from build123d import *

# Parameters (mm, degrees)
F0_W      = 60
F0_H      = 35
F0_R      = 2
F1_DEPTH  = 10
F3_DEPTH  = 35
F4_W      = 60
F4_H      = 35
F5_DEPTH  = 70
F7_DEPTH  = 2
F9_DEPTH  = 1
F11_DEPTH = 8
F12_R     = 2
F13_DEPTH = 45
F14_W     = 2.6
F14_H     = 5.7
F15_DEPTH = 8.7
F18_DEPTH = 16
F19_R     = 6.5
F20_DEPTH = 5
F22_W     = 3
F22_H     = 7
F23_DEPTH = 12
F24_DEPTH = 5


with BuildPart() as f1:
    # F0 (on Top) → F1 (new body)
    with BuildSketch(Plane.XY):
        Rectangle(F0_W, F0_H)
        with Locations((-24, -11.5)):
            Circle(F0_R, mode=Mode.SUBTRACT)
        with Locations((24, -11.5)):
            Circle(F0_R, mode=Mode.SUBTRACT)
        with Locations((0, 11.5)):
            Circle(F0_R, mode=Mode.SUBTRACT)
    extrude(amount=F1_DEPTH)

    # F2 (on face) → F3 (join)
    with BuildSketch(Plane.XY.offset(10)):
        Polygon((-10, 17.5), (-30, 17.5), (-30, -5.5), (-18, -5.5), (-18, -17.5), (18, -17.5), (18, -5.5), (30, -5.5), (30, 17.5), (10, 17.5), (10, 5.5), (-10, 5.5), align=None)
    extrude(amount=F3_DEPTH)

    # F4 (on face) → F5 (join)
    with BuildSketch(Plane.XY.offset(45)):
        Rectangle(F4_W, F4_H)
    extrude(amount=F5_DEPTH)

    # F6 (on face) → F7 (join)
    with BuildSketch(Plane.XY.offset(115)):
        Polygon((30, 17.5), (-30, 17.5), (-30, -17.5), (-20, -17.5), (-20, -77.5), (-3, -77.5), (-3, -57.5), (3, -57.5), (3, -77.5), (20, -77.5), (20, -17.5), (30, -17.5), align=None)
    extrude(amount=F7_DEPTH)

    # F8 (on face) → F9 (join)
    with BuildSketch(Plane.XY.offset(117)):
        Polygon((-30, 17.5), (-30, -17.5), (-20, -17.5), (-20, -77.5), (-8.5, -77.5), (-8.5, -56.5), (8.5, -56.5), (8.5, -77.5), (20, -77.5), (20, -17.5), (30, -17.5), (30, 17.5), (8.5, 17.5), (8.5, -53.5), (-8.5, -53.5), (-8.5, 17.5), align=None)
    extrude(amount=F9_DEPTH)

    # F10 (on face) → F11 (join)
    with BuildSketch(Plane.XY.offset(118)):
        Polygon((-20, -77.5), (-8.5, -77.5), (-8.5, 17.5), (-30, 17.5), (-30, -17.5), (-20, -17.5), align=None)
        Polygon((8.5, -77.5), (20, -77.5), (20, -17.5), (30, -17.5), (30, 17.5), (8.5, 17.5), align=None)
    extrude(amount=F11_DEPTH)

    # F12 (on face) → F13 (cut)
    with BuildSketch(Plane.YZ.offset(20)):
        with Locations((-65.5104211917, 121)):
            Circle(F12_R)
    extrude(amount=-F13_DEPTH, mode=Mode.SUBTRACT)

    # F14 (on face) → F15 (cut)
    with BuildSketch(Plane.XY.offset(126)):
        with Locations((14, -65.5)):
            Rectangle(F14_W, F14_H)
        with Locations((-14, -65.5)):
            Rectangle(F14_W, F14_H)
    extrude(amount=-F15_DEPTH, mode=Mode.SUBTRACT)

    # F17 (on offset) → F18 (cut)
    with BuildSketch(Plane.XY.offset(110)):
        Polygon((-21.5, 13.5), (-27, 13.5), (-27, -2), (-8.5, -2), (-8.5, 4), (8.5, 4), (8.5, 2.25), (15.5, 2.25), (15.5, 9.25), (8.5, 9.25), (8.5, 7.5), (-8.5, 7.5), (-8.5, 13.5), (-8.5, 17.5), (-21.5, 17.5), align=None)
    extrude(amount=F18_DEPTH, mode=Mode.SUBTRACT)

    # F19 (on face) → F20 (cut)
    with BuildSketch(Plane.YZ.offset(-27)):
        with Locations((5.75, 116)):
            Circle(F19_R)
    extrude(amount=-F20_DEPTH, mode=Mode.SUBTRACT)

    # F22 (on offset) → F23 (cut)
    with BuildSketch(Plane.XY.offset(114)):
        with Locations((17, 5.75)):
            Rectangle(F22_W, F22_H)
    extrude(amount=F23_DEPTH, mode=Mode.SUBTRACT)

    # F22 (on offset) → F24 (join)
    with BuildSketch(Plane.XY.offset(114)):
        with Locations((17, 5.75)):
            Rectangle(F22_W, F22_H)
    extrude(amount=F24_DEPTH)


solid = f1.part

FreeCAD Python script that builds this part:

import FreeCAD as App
import Part
import Sketcher

V = App.Vector
Q = App.Units.Quantity

doc = App.newDocument("Part")
params = doc.addObject("Spreadsheet::Sheet", "Params")
for row, (alias, value) in enumerate([
    ("sketch1_diameter", "4 mm"),
    ("sketch1_width", "60 mm"),
    ("sketch1_height", "35 mm"),
    ("pad1_length", "10 mm"),
    ("sketch2_width", "20 mm"),
    ("sketch2_width2", "12 mm"),
    ("sketch2_height", "23 mm"),
    ("pad2_length", "35 mm"),
    ("sketch3_width", "60 mm"),
    ("sketch3_height", "35 mm"),
    ("pad3_length", "70 mm"),
    ("sketch4_width", "60 mm"),
    ("sketch4_width2", "10 mm"),
    ("sketch4_width3", "17 mm"),
    ("sketch4_height", "35 mm"),
    ("sketch4_height2", "20 mm"),
    ("pad4_length", "2 mm"),
    ("sketch5_width", "10 mm"),
    ("sketch5_width2", "17 mm"),
    ("sketch5_height", "35 mm"),
    ("sketch5_height2", "60 mm"),
    ("sketch5_height3", "21 mm"),
    ("pad5_length", "1 mm"),
    ("sketch6_width", "10 mm"),
    ("sketch6_height", "95 mm"),
    ("sketch6_height2", "35 mm"),
    ("sketch6_width2", "11.5 mm"),
    ("pad6_length", "8 mm"),
    ("sketch7_diameter", "4 mm"),
    ("pocket1_length", "45 mm"),
    ("sketch8_width", "2.6 mm"),
    ("sketch8_height", "5.7 mm"),
    ("pocket2_length", "8.7 mm"),
    ("sketch9_width", "17 mm"),
    ("sketch9_width2", "7 mm"),
    ("sketch9_width3", "13 mm"),
    ("sketch9_height", "6 mm"),
    ("sketch9_height2", "10 mm"),
    ("pocket3_length", "16 mm"),
    ("sketch10_diameter", "13 mm"),
    ("pocket4_length", "5 mm"),
    ("sketch11_width", "3 mm"),
    ("sketch11_height", "7 mm"),
    ("pocket5_length", "12 mm"),
    ("sketch12_width", "3 mm"),
    ("sketch12_height", "7 mm"),
    ("pad7_length", "5 mm"),
], start=1):
    params.set(f"A{row}", alias)
    params.set(f"B{row}", "=" + value)
    params.setAlias(f"B{row}", alias)

body = doc.addObject("PartDesign::Body", "Body")

# Sketch on XY plane
sketch1 = body.newObject("Sketcher::SketchObject", "Sketch")
sketch1.AttachmentSupport = (doc.getObject("XY_Plane"), [""])
sketch1.MapMode = "FlatFace"
sketch1.addGeometry(Part.LineSegment(V(-30, 17.5, 0), V(-30, -17.5, 0)), False)
sketch1.addGeometry(Part.LineSegment(V(-30, -17.5, 0), V(30, -17.5, 0)), False)
sketch1.addGeometry(Part.LineSegment(V(30, -17.5, 0), V(30, 17.5, 0)), False)
sketch1.addGeometry(Part.LineSegment(V(30, 17.5, 0), V(-30, 17.5, 0)), False)
sketch1.addGeometry(Part.Circle(V(-24, -11.5, 0), V(0, 0, 1), 2), False)
sketch1.addGeometry(Part.Circle(V(24, -11.5, 0), V(0, 0, 1), 2), False)
sketch1.addGeometry(Part.Circle(V(0, 11.5, 0), V(0, 0, 1), 2), False)
sketch1.addConstraint(Sketcher.Constraint("Coincident", 0, 2, 1, 1))
sketch1.addConstraint(Sketcher.Constraint("Coincident", 1, 2, 2, 1))
sketch1.addConstraint(Sketcher.Constraint("Coincident", 2, 2, 3, 1))
sketch1.addConstraint(Sketcher.Constraint("Coincident", 3, 2, 0, 1))
sketch1.addConstraint(Sketcher.Constraint("Vertical", 0))
sketch1.addConstraint(Sketcher.Constraint("Horizontal", 1))
sketch1.addConstraint(Sketcher.Constraint("Vertical", 2))
sketch1.addConstraint(Sketcher.Constraint("Horizontal", 3))
sketch1.addConstraint(Sketcher.Constraint("Equal", 4, 5))
sketch1.addConstraint(Sketcher.Constraint("Equal", 5, 6))
sketch1.addConstraint(Sketcher.Constraint("Symmetric", 0, 2, 2, 2, -1, 1))
sketch1.addConstraint(Sketcher.Constraint("Symmetric", 4, 3, 5, 3, -2))
sketch1.addConstraint(Sketcher.Constraint("PointOnObject", 6, 3, -2))
sketch1.addConstraint(Sketcher.Constraint("Diameter", 4, Q("4 mm")))
sketch1.addConstraint(Sketcher.Constraint("DistanceX", 1, 1, 1, 2, Q("60 mm")))
sketch1.addConstraint(Sketcher.Constraint("DistanceY", 0, 2, 0, 1, Q("35 mm")))
sketch1.addConstraint(Sketcher.Constraint("DistanceX", 4, 3, -1, 1, Q("24 mm")))
sketch1.addConstraint(Sketcher.Constraint("DistanceY", 4, 3, 6, 3, Q("23 mm")))
sketch1.addConstraint(Sketcher.Constraint("DistanceY", 0, 2, 4, 3, Q("6 mm")))
sketch1.setExpression("Constraints[13]", "Params.sketch1_diameter")
sketch1.setExpression("Constraints[14]", "Params.sketch1_width")
sketch1.setExpression("Constraints[15]", "Params.sketch1_height")
pad1 = body.newObject("PartDesign::Pad", "Pad")
pad1.Profile = sketch1
pad1.setExpression("Length", "Params.pad1_length")

# Sketch on XY plane
sketch2 = body.newObject("Sketcher::SketchObject", "Sketch001")
sketch2.AttachmentSupport = (doc.getObject("XY_Plane"), [""])
sketch2.MapMode = "FlatFace"
sketch2.AttachmentOffset = App.Placement(V(0, 0, 10), App.Rotation())
sketch2.addGeometry(Part.LineSegment(V(-10, 18, 0), V(-30, 18, 0)), False)
sketch2.addGeometry(Part.LineSegment(V(-30, 18, 0), V(-30, -6, 0)), False)
sketch2.addGeometry(Part.LineSegment(V(-30, -6, 0), V(-18, -6, 0)), False)
sketch2.addGeometry(Part.LineSegment(V(-18, -6, 0), V(-18, -18, 0)), False)
sketch2.addGeometry(Part.LineSegment(V(-18, -18, 0), V(18, -18, 0)), False)
sketch2.addGeometry(Part.LineSegment(V(18, -18, 0), V(18, -6, 0)), False)
sketch2.addGeometry(Part.LineSegment(V(18, -6, 0), V(30, -6, 0)), False)
sketch2.addGeometry(Part.LineSegment(V(30, -6, 0), V(30, 18, 0)), False)
sketch2.addGeometry(Part.LineSegment(V(30, 18, 0), V(10, 18, 0)), False)
sketch2.addGeometry(Part.LineSegment(V(10, 18, 0), V(10, 6, 0)), False)
sketch2.addGeometry(Part.LineSegment(V(10, 6, 0), V(-10, 6, 0)), False)
sketch2.addGeometry(Part.LineSegment(V(-10, 6, 0), V(-10, 18, 0)), False)
sketch2.addConstraint(Sketcher.Constraint("Coincident", 0, 2, 1, 1))
sketch2.addConstraint(Sketcher.Constraint("Coincident", 1, 2, 2, 1))
sketch2.addConstraint(Sketcher.Constraint("Coincident", 2, 2, 3, 1))
sketch2.addConstraint(Sketcher.Constraint("Coincident", 3, 2, 4, 1))
sketch2.addConstraint(Sketcher.Constraint("Coincident", 4, 2, 5, 1))
sketch2.addConstraint(Sketcher.Constraint("Coincident", 5, 2, 6, 1))
sketch2.addConstraint(Sketcher.Constraint("Coincident", 6, 2, 7, 1))
sketch2.addConstraint(Sketcher.Constraint("Coincident", 7, 2, 8, 1))
sketch2.addConstraint(Sketcher.Constraint("Coincident", 8, 2, 9, 1))
sketch2.addConstraint(Sketcher.Constraint("Coincident", 9, 2, 10, 1))
sketch2.addConstraint(Sketcher.Constraint("Coincident", 10, 2, 11, 1))
sketch2.addConstraint(Sketcher.Constraint("Coincident", 11, 2, 0, 1))
sketch2.addConstraint(Sketcher.Constraint("Horizontal", 0))
sketch2.addConstraint(Sketcher.Constraint("Vertical", 1))
sketch2.addConstraint(Sketcher.Constraint("Horizontal", 2))
sketch2.addConstraint(Sketcher.Constraint("Vertical", 3))
sketch2.addConstraint(Sketcher.Constraint("Horizontal", 4))
sketch2.addConstraint(Sketcher.Constraint("Vertical", 5))
sketch2.addConstraint(Sketcher.Constraint("Horizontal", 6))
sketch2.addConstraint(Sketcher.Constraint("Vertical", 7))
sketch2.addConstraint(Sketcher.Constraint("Horizontal", 8))
sketch2.addConstraint(Sketcher.Constraint("Vertical", 9))
sketch2.addConstraint(Sketcher.Constraint("Horizontal", 10))
sketch2.addConstraint(Sketcher.Constraint("Vertical", 11))
sketch2.addConstraint(Sketcher.Constraint("Symmetric", 2, 2, 5, 2, -2))
sketch2.addConstraint(Sketcher.Constraint("Symmetric", 0, 2, 7, 2, -2))
sketch2.addConstraint(Sketcher.Constraint("Equal", 0, 8))
sketch2.addConstraint(Sketcher.Constraint("Equal", 8, 10))
sketch2.addConstraint(Sketcher.Constraint("Equal", 6, 3))
sketch2.addConstraint(Sketcher.Constraint("Equal", 5, 9))
sketch2.addConstraint(Sketcher.Constraint("DistanceX", 0, 2, 0, 1, Q("20 mm")))
sketch2.addConstraint(Sketcher.Constraint("DistanceX", 2, 1, 2, 2, Q("12 mm")))
sketch2.addConstraint(Sketcher.Constraint("DistanceY", 1, 2, 1, 1, Q("23 mm")))
sketch2.addConstraint(Sketcher.Constraint("DistanceY", -1, 1, 0, 2, Q("17.5 mm")))
sketch2.setExpression("Constraints[30]", "Params.sketch2_width")
sketch2.setExpression("Constraints[31]", "Params.sketch2_width2")
sketch2.setExpression("Constraints[32]", "Params.sketch2_height")
pad2 = body.newObject("PartDesign::Pad", "Pad001")
pad2.Profile = sketch2
pad2.setExpression("Length", "Params.pad2_length")

# Sketch on XY plane
sketch3 = body.newObject("Sketcher::SketchObject", "Sketch002")
sketch3.AttachmentSupport = (doc.getObject("XY_Plane"), [""])
sketch3.MapMode = "FlatFace"
sketch3.AttachmentOffset = App.Placement(V(0, 0, 45), App.Rotation())
sketch3.addGeometry(Part.LineSegment(V(-30, 18, 0), V(-30, -18, 0)), False)
sketch3.addGeometry(Part.LineSegment(V(-30, -18, 0), V(30, -18, 0)), False)
sketch3.addGeometry(Part.LineSegment(V(30, -18, 0), V(30, 18, 0)), False)
sketch3.addGeometry(Part.LineSegment(V(30, 18, 0), V(-30, 18, 0)), False)
sketch3.addConstraint(Sketcher.Constraint("Coincident", 0, 2, 1, 1))
sketch3.addConstraint(Sketcher.Constraint("Coincident", 1, 2, 2, 1))
sketch3.addConstraint(Sketcher.Constraint("Coincident", 2, 2, 3, 1))
sketch3.addConstraint(Sketcher.Constraint("Coincident", 3, 2, 0, 1))
sketch3.addConstraint(Sketcher.Constraint("Vertical", 0))
sketch3.addConstraint(Sketcher.Constraint("Horizontal", 1))
sketch3.addConstraint(Sketcher.Constraint("Vertical", 2))
sketch3.addConstraint(Sketcher.Constraint("Horizontal", 3))
sketch3.addConstraint(Sketcher.Constraint("Symmetric", 0, 2, 2, 2, -1, 1))
sketch3.addConstraint(Sketcher.Constraint("DistanceX", 1, 1, 1, 2, Q("60 mm")))
sketch3.addConstraint(Sketcher.Constraint("DistanceY", 0, 2, 0, 1, Q("35 mm")))
sketch3.setExpression("Constraints[9]", "Params.sketch3_width")
sketch3.setExpression("Constraints[10]", "Params.sketch3_height")
pad3 = body.newObject("PartDesign::Pad", "Pad002")
pad3.Profile = sketch3
pad3.setExpression("Length", "Params.pad3_length")

# Sketch on XY plane
sketch4 = body.newObject("Sketcher::SketchObject", "Sketch003")
sketch4.AttachmentSupport = (doc.getObject("XY_Plane"), [""])
sketch4.MapMode = "FlatFace"
sketch4.AttachmentOffset = App.Placement(V(0, 0, 115), App.Rotation())
sketch4.addGeometry(Part.LineSegment(V(30, 18, 0), V(-30, 18, 0)), False)
sketch4.addGeometry(Part.LineSegment(V(-30, 18, 0), V(-30, -18, 0)), False)
sketch4.addGeometry(Part.LineSegment(V(-30, -18, 0), V(-20, -18, 0)), False)
sketch4.addGeometry(Part.LineSegment(V(-20, -18, 0), V(-20, -78, 0)), False)
sketch4.addGeometry(Part.LineSegment(V(-20, -78, 0), V(-3, -78, 0)), False)
sketch4.addGeometry(Part.LineSegment(V(-3, -78, 0), V(-3, -58, 0)), False)
sketch4.addGeometry(Part.LineSegment(V(-3, -58, 0), V(3, -58, 0)), False)
sketch4.addGeometry(Part.LineSegment(V(3, -58, 0), V(3, -78, 0)), False)
sketch4.addGeometry(Part.LineSegment(V(3, -78, 0), V(20, -78, 0)), False)
sketch4.addGeometry(Part.LineSegment(V(20, -78, 0), V(20, -18, 0)), False)
sketch4.addGeometry(Part.LineSegment(V(20, -18, 0), V(30, -18, 0)), False)
sketch4.addGeometry(Part.LineSegment(V(30, -18, 0), V(30, 18, 0)), False)
sketch4.addConstraint(Sketcher.Constraint("Coincident", 0, 2, 1, 1))
sketch4.addConstraint(Sketcher.Constraint("Coincident", 1, 2, 2, 1))
sketch4.addConstraint(Sketcher.Constraint("Coincident", 2, 2, 3, 1))
sketch4.addConstraint(Sketcher.Constraint("Coincident", 3, 2, 4, 1))
sketch4.addConstraint(Sketcher.Constraint("Coincident", 4, 2, 5, 1))
sketch4.addConstraint(Sketcher.Constraint("Coincident", 5, 2, 6, 1))
sketch4.addConstraint(Sketcher.Constraint("Coincident", 6, 2, 7, 1))
sketch4.addConstraint(Sketcher.Constraint("Coincident", 7, 2, 8, 1))
sketch4.addConstraint(Sketcher.Constraint("Coincident", 8, 2, 9, 1))
sketch4.addConstraint(Sketcher.Constraint("Coincident", 9, 2, 10, 1))
sketch4.addConstraint(Sketcher.Constraint("Coincident", 10, 2, 11, 1))
sketch4.addConstraint(Sketcher.Constraint("Coincident", 11, 2, 0, 1))
sketch4.addConstraint(Sketcher.Constraint("Horizontal", 0))
sketch4.addConstraint(Sketcher.Constraint("Vertical", 1))
sketch4.addConstraint(Sketcher.Constraint("Horizontal", 2))
sketch4.addConstraint(Sketcher.Constraint("Vertical", 3))
sketch4.addConstraint(Sketcher.Constraint("Horizontal", 4))
sketch4.addConstraint(Sketcher.Constraint("Vertical", 5))
sketch4.addConstraint(Sketcher.Constraint("Horizontal", 6))
sketch4.addConstraint(Sketcher.Constraint("Vertical", 7))
sketch4.addConstraint(Sketcher.Constraint("Horizontal", 8))
sketch4.addConstraint(Sketcher.Constraint("Vertical", 9))
sketch4.addConstraint(Sketcher.Constraint("Horizontal", 10))
sketch4.addConstraint(Sketcher.Constraint("Vertical", 11))
sketch4.addConstraint(Sketcher.Constraint("Symmetric", 0, 2, 10, 2, -1, 1))
sketch4.addConstraint(Sketcher.Constraint("Symmetric", 4, 2, 7, 2, -2))
sketch4.addConstraint(Sketcher.Constraint("Symmetric", 2, 2, 9, 2, -2))
sketch4.addConstraint(Sketcher.Constraint("Equal", 0, 3))
sketch4.addConstraint(Sketcher.Constraint("DistanceX", 0, 2, 0, 1, Q("60 mm")))
sketch4.addConstraint(Sketcher.Constraint("DistanceX", 2, 1, 2, 2, Q("10 mm")))
sketch4.addConstraint(Sketcher.Constraint("DistanceX", 4, 1, 4, 2, Q("17 mm")))
sketch4.addConstraint(Sketcher.Constraint("DistanceY", 1, 2, 1, 1, Q("35 mm")))
sketch4.addConstraint(Sketcher.Constraint("DistanceY", 5, 1, 5, 2, Q("20 mm")))
sketch4.setExpression("Constraints[28]", "Params.sketch4_width")
sketch4.setExpression("Constraints[29]", "Params.sketch4_width2")
sketch4.setExpression("Constraints[30]", "Params.sketch4_width3")
sketch4.setExpression("Constraints[31]", "Params.sketch4_height")
sketch4.setExpression("Constraints[32]", "Params.sketch4_height2")
pad4 = body.newObject("PartDesign::Pad", "Pad003")
pad4.Profile = sketch4
pad4.setExpression("Length", "Params.pad4_length")

# Sketch on XY plane
sketch5 = body.newObject("Sketcher::SketchObject", "Sketch004")
sketch5.AttachmentSupport = (doc.getObject("XY_Plane"), [""])
sketch5.MapMode = "FlatFace"
sketch5.AttachmentOffset = App.Placement(V(0, 0, 117), App.Rotation())
sketch5.addGeometry(Part.LineSegment(V(-30, 18, 0), V(-30, -18, 0)), False)
sketch5.addGeometry(Part.LineSegment(V(-30, -18, 0), V(-20, -18, 0)), False)
sketch5.addGeometry(Part.LineSegment(V(-20, -18, 0), V(-20, -78, 0)), False)
sketch5.addGeometry(Part.LineSegment(V(-20, -78, 0), V(-8, -78, 0)), False)
sketch5.addGeometry(Part.LineSegment(V(-8, -78, 0), V(-8, -56, 0)), False)
sketch5.addGeometry(Part.LineSegment(V(-8, -56, 0), V(8, -56, 0)), False)
sketch5.addGeometry(Part.LineSegment(V(8, -56, 0), V(8, -78, 0)), False)
sketch5.addGeometry(Part.LineSegment(V(8, -78, 0), V(20, -78, 0)), False)
sketch5.addGeometry(Part.LineSegment(V(20, -78, 0), V(20, -18, 0)), False)
sketch5.addGeometry(Part.LineSegment(V(20, -18, 0), V(30, -18, 0)), False)
sketch5.addGeometry(Part.LineSegment(V(30, -18, 0), V(30, 18, 0)), False)
sketch5.addGeometry(Part.LineSegment(V(30, 18, 0), V(8, 18, 0)), False)
sketch5.addGeometry(Part.LineSegment(V(8, 18, 0), V(8, -54, 0)), False)
sketch5.addGeometry(Part.LineSegment(V(8, -54, 0), V(-8, -54, 0)), False)
sketch5.addGeometry(Part.LineSegment(V(-8, -54, 0), V(-8, 18, 0)), False)
sketch5.addGeometry(Part.LineSegment(V(-8, 18, 0), V(-30, 18, 0)), False)
sketch5.addConstraint(Sketcher.Constraint("Coincident", 0, 2, 1, 1))
sketch5.addConstraint(Sketcher.Constraint("Coincident", 1, 2, 2, 1))
sketch5.addConstraint(Sketcher.Constraint("Coincident", 2, 2, 3, 1))
sketch5.addConstraint(Sketcher.Constraint("Coincident", 3, 2, 4, 1))
sketch5.addConstraint(Sketcher.Constraint("Coincident", 4, 2, 5, 1))
sketch5.addConstraint(Sketcher.Constraint("Coincident", 5, 2, 6, 1))
sketch5.addConstraint(Sketcher.Constraint("Coincident", 6, 2, 7, 1))
sketch5.addConstraint(Sketcher.Constraint("Coincident", 7, 2, 8, 1))
sketch5.addConstraint(Sketcher.Constraint("Coincident", 8, 2, 9, 1))
sketch5.addConstraint(Sketcher.Constraint("Coincident", 9, 2, 10, 1))
sketch5.addConstraint(Sketcher.Constraint("Coincident", 10, 2, 11, 1))
sketch5.addConstraint(Sketcher.Constraint("Coincident", 11, 2, 12, 1))
sketch5.addConstraint(Sketcher.Constraint("Coincident", 12, 2, 13, 1))
sketch5.addConstraint(Sketcher.Constraint("Coincident", 13, 2, 14, 1))
sketch5.addConstraint(Sketcher.Constraint("Coincident", 14, 2, 15, 1))
sketch5.addConstraint(Sketcher.Constraint("Coincident", 15, 2, 0, 1))
sketch5.addConstraint(Sketcher.Constraint("Vertical", 0))
sketch5.addConstraint(Sketcher.Constraint("Horizontal", 1))
sketch5.addConstraint(Sketcher.Constraint("Vertical", 2))
sketch5.addConstraint(Sketcher.Constraint("Horizontal", 3))
sketch5.addConstraint(Sketcher.Constraint("Vertical", 4))
sketch5.addConstraint(Sketcher.Constraint("Horizontal", 5))
sketch5.addConstraint(Sketcher.Constraint("Vertical", 6))
sketch5.addConstraint(Sketcher.Constraint("Horizontal", 7))
sketch5.addConstraint(Sketcher.Constraint("Vertical", 8))
sketch5.addConstraint(Sketcher.Constraint("Horizontal", 9))
sketch5.addConstraint(Sketcher.Constraint("Vertical", 10))
sketch5.addConstraint(Sketcher.Constraint("Horizontal", 11))
sketch5.addConstraint(Sketcher.Constraint("Vertical", 12))
sketch5.addConstraint(Sketcher.Constraint("Horizontal", 13))
sketch5.addConstraint(Sketcher.Constraint("Vertical", 14))
sketch5.addConstraint(Sketcher.Constraint("Horizontal", 15))
sketch5.addConstraint(Sketcher.Constraint("Symmetric", 0, 2, 10, 2, -1, 1))
sketch5.addConstraint(Sketcher.Constraint("Symmetric", 3, 2, 6, 2, -2))
sketch5.addConstraint(Sketcher.Constraint("Symmetric", 1, 2, 8, 2, -2))
sketch5.addConstraint(Sketcher.Constraint("Symmetric", 11, 2, 14, 2, -2))
sketch5.addConstraint(Sketcher.Constraint("Vertical", 6, 2, 11, 2))
sketch5.addConstraint(Sketcher.Constraint("DistanceX", 1, 1, 1, 2, Q("10 mm")))
sketch5.addConstraint(Sketcher.Constraint("DistanceX", 5, 1, 5, 2, Q("17 mm")))
sketch5.addConstraint(Sketcher.Constraint("DistanceY", 0, 2, 0, 1, Q("35 mm")))
sketch5.addConstraint(Sketcher.Constraint("DistanceY", 2, 2, 2, 1, Q("60 mm")))
sketch5.addConstraint(Sketcher.Constraint("DistanceY", 4, 1, 4, 2, Q("21 mm")))
sketch5.addConstraint(Sketcher.Constraint("DistanceY", 12, 2, 12, 1, Q("71 mm")))
sketch5.addConstraint(Sketcher.Constraint("DistanceX", 3, 1, 3, 2, Q("11.5 mm")))
sketch5.setExpression("Constraints[37]", "Params.sketch5_width")
sketch5.setExpression("Constraints[38]", "Params.sketch5_width2")
sketch5.setExpression("Constraints[39]", "Params.sketch5_height")
sketch5.setExpression("Constraints[40]", "Params.sketch5_height2")
sketch5.setExpression("Constraints[41]", "Params.sketch5_height3")
pad5 = body.newObject("PartDesign::Pad", "Pad004")
pad5.Profile = sketch5
pad5.setExpression("Length", "Params.pad5_length")

# Sketch on XY plane
sketch6 = body.newObject("Sketcher::SketchObject", "Sketch005")
sketch6.AttachmentSupport = (doc.getObject("XY_Plane"), [""])
sketch6.MapMode = "FlatFace"
sketch6.AttachmentOffset = App.Placement(V(0, 0, 118), App.Rotation())
sketch6.addGeometry(Part.LineSegment(V(-20, -78, 0), V(-8, -78, 0)), False)
sketch6.addGeometry(Part.LineSegment(V(-8, -78, 0), V(-8, 18, 0)), False)
sketch6.addGeometry(Part.LineSegment(V(-8, 18, 0), V(-30, 18, 0)), False)
sketch6.addGeometry(Part.LineSegment(V(-30, 18, 0), V(-30, -18, 0)), False)
sketch6.addGeometry(Part.LineSegment(V(-30, -18, 0), V(-20, -18, 0)), False)
sketch6.addGeometry(Part.LineSegment(V(-20, -18, 0), V(-20, -78, 0)), False)
sketch6.addGeometry(Part.LineSegment(V(8, -78, 0), V(20, -78, 0)), False)
sketch6.addGeometry(Part.LineSegment(V(20, -78, 0), V(20, -18, 0)), False)
sketch6.addGeometry(Part.LineSegment(V(20, -18, 0), V(30, -18, 0)), False)
sketch6.addGeometry(Part.LineSegment(V(30, -18, 0), V(30, 18, 0)), False)
sketch6.addGeometry(Part.LineSegment(V(30, 18, 0), V(8, 18, 0)), False)
sketch6.addGeometry(Part.LineSegment(V(8, 18, 0), V(8, -78, 0)), False)
sketch6.addConstraint(Sketcher.Constraint("Coincident", 0, 2, 1, 1))
sketch6.addConstraint(Sketcher.Constraint("Coincident", 1, 2, 2, 1))
sketch6.addConstraint(Sketcher.Constraint("Coincident", 2, 2, 3, 1))
sketch6.addConstraint(Sketcher.Constraint("Coincident", 3, 2, 4, 1))
sketch6.addConstraint(Sketcher.Constraint("Coincident", 4, 2, 5, 1))
sketch6.addConstraint(Sketcher.Constraint("Coincident", 5, 2, 0, 1))
sketch6.addConstraint(Sketcher.Constraint("Coincident", 6, 2, 7, 1))
sketch6.addConstraint(Sketcher.Constraint("Coincident", 7, 2, 8, 1))
sketch6.addConstraint(Sketcher.Constraint("Coincident", 8, 2, 9, 1))
sketch6.addConstraint(Sketcher.Constraint("Coincident", 9, 2, 10, 1))
sketch6.addConstraint(Sketcher.Constraint("Coincident", 10, 2, 11, 1))
sketch6.addConstraint(Sketcher.Constraint("Coincident", 11, 2, 6, 1))
sketch6.addConstraint(Sketcher.Constraint("Horizontal", 0))
sketch6.addConstraint(Sketcher.Constraint("Vertical", 1))
sketch6.addConstraint(Sketcher.Constraint("Horizontal", 2))
sketch6.addConstraint(Sketcher.Constraint("Vertical", 3))
sketch6.addConstraint(Sketcher.Constraint("Horizontal", 4))
sketch6.addConstraint(Sketcher.Constraint("Vertical", 5))
sketch6.addConstraint(Sketcher.Constraint("Horizontal", 6))
sketch6.addConstraint(Sketcher.Constraint("Vertical", 7))
sketch6.addConstraint(Sketcher.Constraint("Horizontal", 8))
sketch6.addConstraint(Sketcher.Constraint("Vertical", 9))
sketch6.addConstraint(Sketcher.Constraint("Horizontal", 10))
sketch6.addConstraint(Sketcher.Constraint("Vertical", 11))
sketch6.addConstraint(Sketcher.Constraint("Symmetric", 2, 2, 8, 2, -1, 1))
sketch6.addConstraint(Sketcher.Constraint("Symmetric", 5, 2, 6, 2, -2))
sketch6.addConstraint(Sketcher.Constraint("Symmetric", 1, 2, 10, 2, -2))
sketch6.addConstraint(Sketcher.Constraint("Horizontal", 4, 2, 7, 2))
sketch6.addConstraint(Sketcher.Constraint("DistanceX", 4, 1, 4, 2, Q("10 mm")))
sketch6.addConstraint(Sketcher.Constraint("DistanceY", 1, 1, 1, 2, Q("95 mm")))
sketch6.addConstraint(Sketcher.Constraint("DistanceY", 3, 2, 3, 1, Q("35 mm")))
sketch6.addConstraint(Sketcher.Constraint("DistanceX", 0, 1, 0, 2, Q("11.5 mm")))
sketch6.addConstraint(Sketcher.Constraint("DistanceX", 2, 2, -1, 1, Q("30 mm")))
sketch6.setExpression("Constraints[28]", "Params.sketch6_width")
sketch6.setExpression("Constraints[29]", "Params.sketch6_height")
sketch6.setExpression("Constraints[30]", "Params.sketch6_height2")
sketch6.setExpression("Constraints[31]", "Params.sketch6_width2")
pad6 = body.newObject("PartDesign::Pad", "Pad005")
pad6.Profile = sketch6
pad6.setExpression("Length", "Params.pad6_length")

# Sketch on YZ plane
sketch7 = body.newObject("Sketcher::SketchObject", "Sketch006")
sketch7.AttachmentSupport = (doc.getObject("YZ_Plane"), [""])
sketch7.MapMode = "FlatFace"
sketch7.AttachmentOffset = App.Placement(V(0, 0, 20), App.Rotation())
sketch7.addGeometry(Part.Circle(V(-65.5, 121, 0), V(0, 0, 1), 2), False)
sketch7.addConstraint(Sketcher.Constraint("Diameter", 0, Q("4 mm")))
sketch7.addConstraint(Sketcher.Constraint("DistanceY", -1, 1, 0, 3, Q("121 mm")))
sketch7.addConstraint(Sketcher.Constraint("DistanceX", 0, 3, -1, 1, Q("65.510421 mm")))
sketch7.setExpression("Constraints[0]", "Params.sketch7_diameter")
pocket1 = body.newObject("PartDesign::Pocket", "Pocket")
pocket1.Profile = sketch7
pocket1.setExpression("Length", "Params.pocket1_length")

# Sketch on XY plane
sketch8 = body.newObject("Sketcher::SketchObject", "Sketch007")
sketch8.AttachmentSupport = (doc.getObject("XY_Plane"), [""])
sketch8.MapMode = "FlatFace"
sketch8.AttachmentOffset = App.Placement(V(0, 0, 126), App.Rotation())
sketch8.addGeometry(Part.LineSegment(V(12.7, -62.6, 0), V(12.7, -68.3, 0)), False)
sketch8.addGeometry(Part.LineSegment(V(12.7, -68.3, 0), V(15.3, -68.3, 0)), False)
sketch8.addGeometry(Part.LineSegment(V(15.3, -68.3, 0), V(15.3, -62.6, 0)), False)
sketch8.addGeometry(Part.LineSegment(V(15.3, -62.6, 0), V(12.7, -62.6, 0)), False)
sketch8.addGeometry(Part.LineSegment(V(-15.3, -62.6, 0), V(-15.3, -68.3, 0)), False)
sketch8.addGeometry(Part.LineSegment(V(-15.3, -68.3, 0), V(-12.7, -68.3, 0)), False)
sketch8.addGeometry(Part.LineSegment(V(-12.7, -68.3, 0), V(-12.7, -62.6, 0)), False)
sketch8.addGeometry(Part.LineSegment(V(-12.7, -62.6, 0), V(-15.3, -62.6, 0)), False)
sketch8.addConstraint(Sketcher.Constraint("Coincident", 0, 2, 1, 1))
sketch8.addConstraint(Sketcher.Constraint("Coincident", 1, 2, 2, 1))
sketch8.addConstraint(Sketcher.Constraint("Coincident", 2, 2, 3, 1))
sketch8.addConstraint(Sketcher.Constraint("Coincident", 3, 2, 0, 1))
sketch8.addConstraint(Sketcher.Constraint("Coincident", 4, 2, 5, 1))
sketch8.addConstraint(Sketcher.Constraint("Coincident", 5, 2, 6, 1))
sketch8.addConstraint(Sketcher.Constraint("Coincident", 6, 2, 7, 1))
sketch8.addConstraint(Sketcher.Constraint("Coincident", 7, 2, 4, 1))
sketch8.addConstraint(Sketcher.Constraint("Vertical", 0))
sketch8.addConstraint(Sketcher.Constraint("Horizontal", 1))
sketch8.addConstraint(Sketcher.Constraint("Vertical", 2))
sketch8.addConstraint(Sketcher.Constraint("Horizontal", 3))
sketch8.addConstraint(Sketcher.Constraint("Vertical", 4))
sketch8.addConstraint(Sketcher.Constraint("Horizontal", 5))
sketch8.addConstraint(Sketcher.Constraint("Vertical", 6))
sketch8.addConstraint(Sketcher.Constraint("Horizontal", 7))
sketch8.addConstraint(Sketcher.Constraint("Symmetric", 1, 2, 4, 2, -2))
sketch8.addConstraint(Sketcher.Constraint("Symmetric", 3, 2, 6, 2, -2))
sketch8.addConstraint(Sketcher.Constraint("DistanceX", 1, 1, 1, 2, Q("2.6 mm")))
sketch8.addConstraint(Sketcher.Constraint("DistanceY", 0, 2, 0, 1, Q("5.7 mm")))
sketch8.addConstraint(Sketcher.Constraint("DistanceX", 4, 2, 0, 2, Q("28 mm")))
sketch8.addConstraint(Sketcher.Constraint("DistanceY", 0, 2, -1, 1, Q("68.35 mm")))
sketch8.setExpression("Constraints[18]", "Params.sketch8_width")
sketch8.setExpression("Constraints[19]", "Params.sketch8_height")
pocket2 = body.newObject("PartDesign::Pocket", "Pocket001")
pocket2.Profile = sketch8
pocket2.setExpression("Length", "Params.pocket2_length")

# Sketch on XY plane
sketch9 = body.newObject("Sketcher::SketchObject", "Sketch008")
sketch9.AttachmentSupport = (doc.getObject("XY_Plane"), [""])
sketch9.MapMode = "FlatFace"
sketch9.AttachmentOffset = App.Placement(V(0, 0, 110), App.Rotation())
sketch9.addGeometry(Part.LineSegment(V(-21.5, 13.5, 0), V(-27, 13.5, 0)), False)
sketch9.addGeometry(Part.LineSegment(V(-27, 13.5, 0), V(-27, -2, 0)), False)
sketch9.addGeometry(Part.LineSegment(V(-27, -2, 0), V(-8.5, -2, 0)), False)
sketch9.addGeometry(Part.LineSegment(V(-8.5, -2, 0), V(-8.5, 4, 0)), False)
sketch9.addGeometry(Part.LineSegment(V(-8.5, 4, 0), V(8.5, 4, 0)), False)
sketch9.addGeometry(Part.LineSegment(V(8.5, 4, 0), V(8.5, 2.2, 0)), False)
sketch9.addGeometry(Part.LineSegment(V(8.5, 2.2, 0), V(15.5, 2.2, 0)), False)
sketch9.addGeometry(Part.LineSegment(V(15.5, 2.2, 0), V(15.5, 9.2, 0)), False)
sketch9.addGeometry(Part.LineSegment(V(15.5, 9.2, 0), V(8.5, 9.2, 0)), False)
sketch9.addGeometry(Part.LineSegment(V(8.5, 9.2, 0), V(8.5, 7.5, 0)), False)
sketch9.addGeometry(Part.LineSegment(V(8.5, 7.5, 0), V(-8.5, 7.5, 0)), False)
sketch9.addGeometry(Part.LineSegment(V(-8.5, 7.5, 0), V(-8.5, 17.5, 0)), False)
sketch9.addGeometry(Part.LineSegment(V(-8.5, 17.5, 0), V(-21.5, 17.5, 0)), False)
sketch9.addGeometry(Part.LineSegment(V(-21.5, 17.5, 0), V(-21.5, 13.5, 0)), False)
sketch9.addConstraint(Sketcher.Constraint("Coincident", 0, 2, 1, 1))
sketch9.addConstraint(Sketcher.Constraint("Coincident", 1, 2, 2, 1))
sketch9.addConstraint(Sketcher.Constraint("Coincident", 2, 2, 3, 1))
sketch9.addConstraint(Sketcher.Constraint("Coincident", 3, 2, 4, 1))
sketch9.addConstraint(Sketcher.Constraint("Coincident", 4, 2, 5, 1))
sketch9.addConstraint(Sketcher.Constraint("Coincident", 5, 2, 6, 1))
sketch9.addConstraint(Sketcher.Constraint("Coincident", 6, 2, 7, 1))
sketch9.addConstraint(Sketcher.Constraint("Coincident", 7, 2, 8, 1))
sketch9.addConstraint(Sketcher.Constraint("Coincident", 8, 2, 9, 1))
sketch9.addConstraint(Sketcher.Constraint("Coincident", 9, 2, 10, 1))
sketch9.addConstraint(Sketcher.Constraint("Coincident", 10, 2, 11, 1))
sketch9.addConstraint(Sketcher.Constraint("Coincident", 11, 2, 12, 1))
sketch9.addConstraint(Sketcher.Constraint("Coincident", 12, 2, 13, 1))
sketch9.addConstraint(Sketcher.Constraint("Coincident", 13, 2, 0, 1))
sketch9.addConstraint(Sketcher.Constraint("Horizontal", 0))
sketch9.addConstraint(Sketcher.Constraint("Vertical", 1))
sketch9.addConstraint(Sketcher.Constraint("Horizontal", 2))
sketch9.addConstraint(Sketcher.Constraint("Vertical", 3))
sketch9.addConstraint(Sketcher.Constraint("Horizontal", 4))
sketch9.addConstraint(Sketcher.Constraint("Vertical", 5))
sketch9.addConstraint(Sketcher.Constraint("Horizontal", 6))
sketch9.addConstraint(Sketcher.Constraint("Vertical", 7))
sketch9.addConstraint(Sketcher.Constraint("Horizontal", 8))
sketch9.addConstraint(Sketcher.Constraint("Vertical", 9))
sketch9.addConstraint(Sketcher.Constraint("Horizontal", 10))
sketch9.addConstraint(Sketcher.Constraint("Vertical", 11))
sketch9.addConstraint(Sketcher.Constraint("Horizontal", 12))
sketch9.addConstraint(Sketcher.Constraint("Vertical", 13))
sketch9.addConstraint(Sketcher.Constraint("Vertical", 5, 2, 8, 2))
sketch9.addConstraint(Sketcher.Constraint("Vertical", 3, 2, 10, 2))
sketch9.addConstraint(Sketcher.Constraint("Equal", 8, 7))
sketch9.addConstraint(Sketcher.Constraint("Equal", 5, 9))
sketch9.addConstraint(Sketcher.Constraint("DistanceX", 4, 1, 4, 2, Q("17 mm")))
sketch9.addConstraint(Sketcher.Constraint("DistanceX", 6, 1, 6, 2, Q("7 mm")))
sketch9.addConstraint(Sketcher.Constraint("DistanceX", 12, 2, 12, 1, Q("13 mm")))
sketch9.addConstraint(Sketcher.Constraint("DistanceY", 3, 1, 3, 2, Q("6 mm")))
sketch9.addConstraint(Sketcher.Constraint("DistanceY", 11, 1, 11, 2, Q("10 mm")))
sketch9.addConstraint(Sketcher.Constraint("DistanceY", 13, 2, 13, 1, Q("4 mm")))
sketch9.addConstraint(Sketcher.Constraint("DistanceX", 0, 2, 0, 1, Q("5.5 mm")))
sketch9.addConstraint(Sketcher.Constraint("DistanceY", 1, 2, 1, 1, Q("15.5 mm")))
sketch9.addConstraint(Sketcher.Constraint("DistanceX", 0, 2, -1, 1, Q("27 mm")))
sketch9.addConstraint(Sketcher.Constraint("DistanceY", 1, 2, -1, 1, Q("2 mm")))
sketch9.setExpression("Constraints[32]", "Params.sketch9_width")
sketch9.setExpression("Constraints[33]", "Params.sketch9_width2")
sketch9.setExpression("Constraints[34]", "Params.sketch9_width3")
sketch9.setExpression("Constraints[35]", "Params.sketch9_height")
sketch9.setExpression("Constraints[36]", "Params.sketch9_height2")
pocket3 = body.newObject("PartDesign::Pocket", "Pocket002")
pocket3.Profile = sketch9
pocket3.setExpression("Length", "Params.pocket3_length")
pocket3.Reversed = True

# Sketch on YZ plane
sketch10 = body.newObject("Sketcher::SketchObject", "Sketch009")
sketch10.AttachmentSupport = (doc.getObject("YZ_Plane"), [""])
sketch10.MapMode = "FlatFace"
sketch10.AttachmentOffset = App.Placement(V(0, 0, -27), App.Rotation())
sketch10.addGeometry(Part.Circle(V(6, 116, 0), V(0, 0, 1), 6), False)
sketch10.addConstraint(Sketcher.Constraint("Diameter", 0, Q("13 mm")))
sketch10.addConstraint(Sketcher.Constraint("DistanceY", -1, 1, 0, 3, Q("116 mm")))
sketch10.addConstraint(Sketcher.Constraint("DistanceX", -1, 1, 0, 3, Q("5.75 mm")))
sketch10.setExpression("Constraints[0]", "Params.sketch10_diameter")
pocket4 = body.newObject("PartDesign::Pocket", "Pocket003")
pocket4.Profile = sketch10
pocket4.setExpression("Length", "Params.pocket4_length")

# Sketch on XY plane
sketch11 = body.newObject("Sketcher::SketchObject", "Sketch010")
sketch11.AttachmentSupport = (doc.getObject("XY_Plane"), [""])
sketch11.MapMode = "FlatFace"
sketch11.AttachmentOffset = App.Placement(V(0, 0, 114), App.Rotation())
sketch11.addGeometry(Part.LineSegment(V(15.5, 9.2, 0), V(15.5, 2.2, 0)), False)
sketch11.addGeometry(Part.LineSegment(V(15.5, 2.2, 0), V(18.5, 2.2, 0)), False)
sketch11.addGeometry(Part.LineSegment(V(18.5, 2.2, 0), V(18.5, 9.2, 0)), False)
sketch11.addGeometry(Part.LineSegment(V(18.5, 9.2, 0), V(15.5, 9.2, 0)), False)
sketch11.addConstraint(Sketcher.Constraint("Coincident", 0, 2, 1, 1))
sketch11.addConstraint(Sketcher.Constraint("Coincident", 1, 2, 2, 1))
sketch11.addConstraint(Sketcher.Constraint("Coincident", 2, 2, 3, 1))
sketch11.addConstraint(Sketcher.Constraint("Coincident", 3, 2, 0, 1))
sketch11.addConstraint(Sketcher.Constraint("Vertical", 0))
sketch11.addConstraint(Sketcher.Constraint("Horizontal", 1))
sketch11.addConstraint(Sketcher.Constraint("Vertical", 2))
sketch11.addConstraint(Sketcher.Constraint("Horizontal", 3))
sketch11.addConstraint(Sketcher.Constraint("DistanceX", 1, 1, 1, 2, Q("3 mm")))
sketch11.addConstraint(Sketcher.Constraint("DistanceY", 0, 2, 0, 1, Q("7 mm")))
sketch11.addConstraint(Sketcher.Constraint("DistanceX", -1, 1, 0, 2, Q("15.5 mm")))
sketch11.addConstraint(Sketcher.Constraint("DistanceY", -1, 1, 0, 2, Q("2.25 mm")))
sketch11.setExpression("Constraints[8]", "Params.sketch11_width")
sketch11.setExpression("Constraints[9]", "Params.sketch11_height")
pocket5 = body.newObject("PartDesign::Pocket", "Pocket004")
pocket5.Profile = sketch11
pocket5.setExpression("Length", "Params.pocket5_length")
pocket5.Reversed = True

# Sketch on XY plane
sketch12 = body.newObject("Sketcher::SketchObject", "Sketch011")
sketch12.AttachmentSupport = (doc.getObject("XY_Plane"), [""])
sketch12.MapMode = "FlatFace"
sketch12.AttachmentOffset = App.Placement(V(0, 0, 114), App.Rotation())
sketch12.addGeometry(Part.LineSegment(V(15.5, 9.2, 0), V(15.5, 2.2, 0)), False)
sketch12.addGeometry(Part.LineSegment(V(15.5, 2.2, 0), V(18.5, 2.2, 0)), False)
sketch12.addGeometry(Part.LineSegment(V(18.5, 2.2, 0), V(18.5, 9.2, 0)), False)
sketch12.addGeometry(Part.LineSegment(V(18.5, 9.2, 0), V(15.5, 9.2, 0)), False)
sketch12.addConstraint(Sketcher.Constraint("Coincident", 0, 2, 1, 1))
sketch12.addConstraint(Sketcher.Constraint("Coincident", 1, 2, 2, 1))
sketch12.addConstraint(Sketcher.Constraint("Coincident", 2, 2, 3, 1))
sketch12.addConstraint(Sketcher.Constraint("Coincident", 3, 2, 0, 1))
sketch12.addConstraint(Sketcher.Constraint("Vertical", 0))
sketch12.addConstraint(Sketcher.Constraint("Horizontal", 1))
sketch12.addConstraint(Sketcher.Constraint("Vertical", 2))
sketch12.addConstraint(Sketcher.Constraint("Horizontal", 3))
sketch12.addConstraint(Sketcher.Constraint("DistanceX", 1, 1, 1, 2, Q("3 mm")))
sketch12.addConstraint(Sketcher.Constraint("DistanceY", 0, 2, 0, 1, Q("7 mm")))
sketch12.addConstraint(Sketcher.Constraint("DistanceX", -1, 1, 0, 2, Q("15.5 mm")))
sketch12.addConstraint(Sketcher.Constraint("DistanceY", -1, 1, 0, 2, Q("2.25 mm")))
sketch12.setExpression("Constraints[8]", "Params.sketch12_width")
sketch12.setExpression("Constraints[9]", "Params.sketch12_height")
pad7 = body.newObject("PartDesign::Pad", "Pad006")
pad7.Profile = sketch12
pad7.setExpression("Length", "Params.pad7_length")

doc.recompute()
